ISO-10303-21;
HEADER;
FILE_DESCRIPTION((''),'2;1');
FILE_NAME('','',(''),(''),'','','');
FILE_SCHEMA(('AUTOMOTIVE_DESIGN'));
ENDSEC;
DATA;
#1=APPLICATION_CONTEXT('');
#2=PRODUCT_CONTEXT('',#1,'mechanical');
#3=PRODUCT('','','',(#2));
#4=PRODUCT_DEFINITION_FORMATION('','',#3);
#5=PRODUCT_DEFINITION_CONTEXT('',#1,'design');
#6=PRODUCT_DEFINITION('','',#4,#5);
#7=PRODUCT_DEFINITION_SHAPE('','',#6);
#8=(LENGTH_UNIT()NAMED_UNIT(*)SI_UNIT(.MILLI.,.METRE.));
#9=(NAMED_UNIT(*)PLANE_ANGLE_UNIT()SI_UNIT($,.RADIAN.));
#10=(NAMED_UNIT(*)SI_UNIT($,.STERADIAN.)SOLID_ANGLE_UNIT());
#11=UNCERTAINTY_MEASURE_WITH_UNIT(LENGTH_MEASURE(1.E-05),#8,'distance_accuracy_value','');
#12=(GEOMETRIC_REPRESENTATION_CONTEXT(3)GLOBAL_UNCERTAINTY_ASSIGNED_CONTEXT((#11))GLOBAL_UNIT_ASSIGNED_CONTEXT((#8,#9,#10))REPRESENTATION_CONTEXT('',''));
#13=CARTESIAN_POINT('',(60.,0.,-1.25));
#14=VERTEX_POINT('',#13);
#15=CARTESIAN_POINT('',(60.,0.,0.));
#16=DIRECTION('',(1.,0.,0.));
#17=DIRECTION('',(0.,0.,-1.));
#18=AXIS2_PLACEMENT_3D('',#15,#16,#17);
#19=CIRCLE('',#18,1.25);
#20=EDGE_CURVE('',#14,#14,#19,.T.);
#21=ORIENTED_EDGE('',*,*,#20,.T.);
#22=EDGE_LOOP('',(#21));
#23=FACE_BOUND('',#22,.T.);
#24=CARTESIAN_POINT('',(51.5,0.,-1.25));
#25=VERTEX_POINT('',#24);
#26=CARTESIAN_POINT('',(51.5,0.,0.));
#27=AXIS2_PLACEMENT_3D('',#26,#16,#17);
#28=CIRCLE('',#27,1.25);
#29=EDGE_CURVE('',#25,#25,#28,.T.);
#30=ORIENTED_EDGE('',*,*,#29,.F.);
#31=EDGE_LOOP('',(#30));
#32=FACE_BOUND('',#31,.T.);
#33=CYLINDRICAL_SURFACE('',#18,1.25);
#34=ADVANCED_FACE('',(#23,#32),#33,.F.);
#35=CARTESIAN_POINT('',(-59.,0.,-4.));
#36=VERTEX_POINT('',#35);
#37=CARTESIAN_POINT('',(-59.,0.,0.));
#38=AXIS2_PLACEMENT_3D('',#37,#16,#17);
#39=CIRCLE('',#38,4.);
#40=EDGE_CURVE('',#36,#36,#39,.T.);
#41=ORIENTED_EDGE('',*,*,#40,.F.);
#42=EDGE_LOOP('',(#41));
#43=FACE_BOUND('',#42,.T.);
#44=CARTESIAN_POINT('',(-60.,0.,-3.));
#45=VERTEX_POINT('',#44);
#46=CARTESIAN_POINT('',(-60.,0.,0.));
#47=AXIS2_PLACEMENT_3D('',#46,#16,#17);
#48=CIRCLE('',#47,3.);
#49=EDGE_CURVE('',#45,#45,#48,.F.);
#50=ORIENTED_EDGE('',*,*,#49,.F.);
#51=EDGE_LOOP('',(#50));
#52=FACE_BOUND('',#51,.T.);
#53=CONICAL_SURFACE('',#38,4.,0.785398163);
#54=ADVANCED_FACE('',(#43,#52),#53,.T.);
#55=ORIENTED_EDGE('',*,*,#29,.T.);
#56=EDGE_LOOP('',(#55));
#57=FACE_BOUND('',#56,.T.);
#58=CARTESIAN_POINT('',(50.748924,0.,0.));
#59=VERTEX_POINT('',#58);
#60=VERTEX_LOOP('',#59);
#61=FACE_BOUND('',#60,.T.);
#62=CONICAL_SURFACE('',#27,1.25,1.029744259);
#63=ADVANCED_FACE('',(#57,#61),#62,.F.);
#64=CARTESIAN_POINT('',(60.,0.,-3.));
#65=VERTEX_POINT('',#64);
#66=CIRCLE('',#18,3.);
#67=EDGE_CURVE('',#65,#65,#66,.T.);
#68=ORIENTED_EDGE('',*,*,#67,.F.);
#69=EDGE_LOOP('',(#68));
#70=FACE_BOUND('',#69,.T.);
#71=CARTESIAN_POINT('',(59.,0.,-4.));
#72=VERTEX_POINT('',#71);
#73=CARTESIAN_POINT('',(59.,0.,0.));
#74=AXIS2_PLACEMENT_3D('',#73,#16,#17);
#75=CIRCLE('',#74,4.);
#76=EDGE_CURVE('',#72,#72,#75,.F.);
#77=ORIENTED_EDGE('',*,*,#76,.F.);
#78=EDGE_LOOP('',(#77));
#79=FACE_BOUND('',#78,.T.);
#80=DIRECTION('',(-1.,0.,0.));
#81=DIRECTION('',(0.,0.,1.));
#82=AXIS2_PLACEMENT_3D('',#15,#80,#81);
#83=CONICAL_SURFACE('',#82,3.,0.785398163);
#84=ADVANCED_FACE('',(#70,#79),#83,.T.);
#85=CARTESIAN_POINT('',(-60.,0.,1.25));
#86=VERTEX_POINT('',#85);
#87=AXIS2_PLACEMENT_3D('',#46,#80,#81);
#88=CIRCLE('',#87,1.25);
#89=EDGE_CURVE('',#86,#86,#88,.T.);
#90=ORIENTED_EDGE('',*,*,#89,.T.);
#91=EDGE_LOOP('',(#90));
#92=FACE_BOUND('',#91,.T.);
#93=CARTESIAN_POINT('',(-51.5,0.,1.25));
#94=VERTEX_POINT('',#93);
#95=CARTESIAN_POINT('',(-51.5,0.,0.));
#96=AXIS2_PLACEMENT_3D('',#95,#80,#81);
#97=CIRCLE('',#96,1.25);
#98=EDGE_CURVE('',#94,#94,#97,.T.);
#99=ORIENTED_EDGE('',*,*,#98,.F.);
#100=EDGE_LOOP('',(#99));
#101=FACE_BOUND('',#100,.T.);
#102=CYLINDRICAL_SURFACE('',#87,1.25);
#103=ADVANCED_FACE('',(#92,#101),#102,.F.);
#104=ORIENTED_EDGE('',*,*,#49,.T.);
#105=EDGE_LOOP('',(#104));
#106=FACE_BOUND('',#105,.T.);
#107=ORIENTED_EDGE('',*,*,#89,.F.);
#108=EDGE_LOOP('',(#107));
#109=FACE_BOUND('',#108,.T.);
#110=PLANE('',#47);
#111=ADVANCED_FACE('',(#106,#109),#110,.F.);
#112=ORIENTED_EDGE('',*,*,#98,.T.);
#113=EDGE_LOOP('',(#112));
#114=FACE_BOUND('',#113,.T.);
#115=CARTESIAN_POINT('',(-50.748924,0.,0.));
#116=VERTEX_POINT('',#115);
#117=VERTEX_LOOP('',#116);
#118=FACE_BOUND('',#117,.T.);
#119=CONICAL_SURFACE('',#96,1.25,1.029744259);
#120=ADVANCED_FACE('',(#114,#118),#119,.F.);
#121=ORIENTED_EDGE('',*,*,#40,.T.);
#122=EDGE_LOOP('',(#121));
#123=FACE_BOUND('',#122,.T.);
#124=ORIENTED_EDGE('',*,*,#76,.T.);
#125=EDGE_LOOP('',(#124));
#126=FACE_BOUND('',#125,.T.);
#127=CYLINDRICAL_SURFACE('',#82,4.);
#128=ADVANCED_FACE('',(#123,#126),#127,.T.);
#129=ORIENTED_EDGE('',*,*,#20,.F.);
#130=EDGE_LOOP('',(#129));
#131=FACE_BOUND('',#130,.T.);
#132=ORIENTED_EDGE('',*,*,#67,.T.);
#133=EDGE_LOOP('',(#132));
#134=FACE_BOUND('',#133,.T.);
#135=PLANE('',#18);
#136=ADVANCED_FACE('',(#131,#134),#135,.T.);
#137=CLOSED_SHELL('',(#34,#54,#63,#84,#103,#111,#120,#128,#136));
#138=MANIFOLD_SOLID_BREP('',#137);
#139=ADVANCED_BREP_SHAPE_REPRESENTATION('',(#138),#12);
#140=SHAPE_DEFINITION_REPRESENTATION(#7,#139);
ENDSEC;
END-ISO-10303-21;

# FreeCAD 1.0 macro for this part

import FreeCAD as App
import Part
import Sketcher

V = App.Vector


def edges_at(feature, points):
    """Names of the edges that pass closest to the given points."""
    edges = feature.Shape.Edges
    near = lambda p: min(range(len(edges)), key=lambda i: edges[i].distToShape(Part.Vertex(*p))[0])
    return sorted({f"Edge{near(p) + 1}" for p in points})

doc = App.newDocument("Part")
body = doc.addObject("PartDesign::Body", "Body")

sketch1 = body.newObject("Sketcher::SketchObject", "Sketch")
sketch1.AttachmentSupport = (doc.getObject("YZ_Plane"), [""])
sketch1.MapMode = "FlatFace"
sketch1.addGeometry(Part.Circle(V(0, 0, 0), V(0, 0, 1), 4), False)
sketch1.addConstraint([
    Sketcher.Constraint("Coincident", 0, 3, -1, 1),
    Sketcher.Constraint("Diameter", 0, 8.0),
])
pad1 = body.newObject("PartDesign::Pad", "Pad")
pad1.Profile = sketch1
pad1.Length = 120
pad1.Midplane = True
doc.recompute()

chamfer = body.newObject("PartDesign::Chamfer", "Chamfer")
chamfer.Base = (pad1, edges_at(pad1, [(-60, 0, 4), (60, 0, 4)]))
chamfer.Size = 1

sketch2 = body.newObject("Sketcher::SketchObject", "Sketch001")
sketch2.AttachmentSupport = (doc.getObject("YZ_Plane"), [""])
sketch2.MapMode = "FlatFace"
sketch2.AttachmentOffset = App.Placement(V(0, 0, 60), App.Rotation())
sketch2.addGeometry(Part.Circle(V(0, 0, 0), V(0, 0, 1), 1.2), False)
sketch2.addConstraint([
    Sketcher.Constraint("Coincident", 0, 3, -1, 1),
    Sketcher.Constraint("Diameter", 0, 2.5),
])
doc.recompute()
hole = body.newObject("PartDesign::Hole", "Hole")
hole.Profile = sketch2
hole.ThreadType = "None"
hole.Diameter = 2.5
hole.DepthType = "Dimension"
hole.Depth = 8.5
hole.DrillPoint = "Angled"
hole.DrillPointAngle = 118

sketch3 = body.newObject("Sketcher::SketchObject", "Sketch002")
sketch3.AttachmentSupport = (doc.getObject("YZ_Plane"), [""])
sketch3.MapMode = "FlatFace"
sketch3.AttachmentOffset = App.Placement(V(0, 0, -60), App.Rotation())
sketch3.addGeometry(Part.Circle(V(0, 0, 0), V(0, 0, 1), 1.2), False)
sketch3.addConstraint([
    Sketcher.Constraint("Coincident", 0, 3, -1, 1),
    Sketcher.Constraint("Diameter", 0, 2.5),
])
doc.recompute()
hole2 = body.newObject("PartDesign::Hole", "Hole001")
hole2.Profile = sketch3
hole2.ThreadType = "None"
hole2.Diameter = 2.5
hole2.DepthType = "Dimension"
hole2.Depth = 8.5
hole2.DrillPoint = "Angled"
hole2.DrillPointAngle = 118
hole2.Reversed = True

doc.recompute()
